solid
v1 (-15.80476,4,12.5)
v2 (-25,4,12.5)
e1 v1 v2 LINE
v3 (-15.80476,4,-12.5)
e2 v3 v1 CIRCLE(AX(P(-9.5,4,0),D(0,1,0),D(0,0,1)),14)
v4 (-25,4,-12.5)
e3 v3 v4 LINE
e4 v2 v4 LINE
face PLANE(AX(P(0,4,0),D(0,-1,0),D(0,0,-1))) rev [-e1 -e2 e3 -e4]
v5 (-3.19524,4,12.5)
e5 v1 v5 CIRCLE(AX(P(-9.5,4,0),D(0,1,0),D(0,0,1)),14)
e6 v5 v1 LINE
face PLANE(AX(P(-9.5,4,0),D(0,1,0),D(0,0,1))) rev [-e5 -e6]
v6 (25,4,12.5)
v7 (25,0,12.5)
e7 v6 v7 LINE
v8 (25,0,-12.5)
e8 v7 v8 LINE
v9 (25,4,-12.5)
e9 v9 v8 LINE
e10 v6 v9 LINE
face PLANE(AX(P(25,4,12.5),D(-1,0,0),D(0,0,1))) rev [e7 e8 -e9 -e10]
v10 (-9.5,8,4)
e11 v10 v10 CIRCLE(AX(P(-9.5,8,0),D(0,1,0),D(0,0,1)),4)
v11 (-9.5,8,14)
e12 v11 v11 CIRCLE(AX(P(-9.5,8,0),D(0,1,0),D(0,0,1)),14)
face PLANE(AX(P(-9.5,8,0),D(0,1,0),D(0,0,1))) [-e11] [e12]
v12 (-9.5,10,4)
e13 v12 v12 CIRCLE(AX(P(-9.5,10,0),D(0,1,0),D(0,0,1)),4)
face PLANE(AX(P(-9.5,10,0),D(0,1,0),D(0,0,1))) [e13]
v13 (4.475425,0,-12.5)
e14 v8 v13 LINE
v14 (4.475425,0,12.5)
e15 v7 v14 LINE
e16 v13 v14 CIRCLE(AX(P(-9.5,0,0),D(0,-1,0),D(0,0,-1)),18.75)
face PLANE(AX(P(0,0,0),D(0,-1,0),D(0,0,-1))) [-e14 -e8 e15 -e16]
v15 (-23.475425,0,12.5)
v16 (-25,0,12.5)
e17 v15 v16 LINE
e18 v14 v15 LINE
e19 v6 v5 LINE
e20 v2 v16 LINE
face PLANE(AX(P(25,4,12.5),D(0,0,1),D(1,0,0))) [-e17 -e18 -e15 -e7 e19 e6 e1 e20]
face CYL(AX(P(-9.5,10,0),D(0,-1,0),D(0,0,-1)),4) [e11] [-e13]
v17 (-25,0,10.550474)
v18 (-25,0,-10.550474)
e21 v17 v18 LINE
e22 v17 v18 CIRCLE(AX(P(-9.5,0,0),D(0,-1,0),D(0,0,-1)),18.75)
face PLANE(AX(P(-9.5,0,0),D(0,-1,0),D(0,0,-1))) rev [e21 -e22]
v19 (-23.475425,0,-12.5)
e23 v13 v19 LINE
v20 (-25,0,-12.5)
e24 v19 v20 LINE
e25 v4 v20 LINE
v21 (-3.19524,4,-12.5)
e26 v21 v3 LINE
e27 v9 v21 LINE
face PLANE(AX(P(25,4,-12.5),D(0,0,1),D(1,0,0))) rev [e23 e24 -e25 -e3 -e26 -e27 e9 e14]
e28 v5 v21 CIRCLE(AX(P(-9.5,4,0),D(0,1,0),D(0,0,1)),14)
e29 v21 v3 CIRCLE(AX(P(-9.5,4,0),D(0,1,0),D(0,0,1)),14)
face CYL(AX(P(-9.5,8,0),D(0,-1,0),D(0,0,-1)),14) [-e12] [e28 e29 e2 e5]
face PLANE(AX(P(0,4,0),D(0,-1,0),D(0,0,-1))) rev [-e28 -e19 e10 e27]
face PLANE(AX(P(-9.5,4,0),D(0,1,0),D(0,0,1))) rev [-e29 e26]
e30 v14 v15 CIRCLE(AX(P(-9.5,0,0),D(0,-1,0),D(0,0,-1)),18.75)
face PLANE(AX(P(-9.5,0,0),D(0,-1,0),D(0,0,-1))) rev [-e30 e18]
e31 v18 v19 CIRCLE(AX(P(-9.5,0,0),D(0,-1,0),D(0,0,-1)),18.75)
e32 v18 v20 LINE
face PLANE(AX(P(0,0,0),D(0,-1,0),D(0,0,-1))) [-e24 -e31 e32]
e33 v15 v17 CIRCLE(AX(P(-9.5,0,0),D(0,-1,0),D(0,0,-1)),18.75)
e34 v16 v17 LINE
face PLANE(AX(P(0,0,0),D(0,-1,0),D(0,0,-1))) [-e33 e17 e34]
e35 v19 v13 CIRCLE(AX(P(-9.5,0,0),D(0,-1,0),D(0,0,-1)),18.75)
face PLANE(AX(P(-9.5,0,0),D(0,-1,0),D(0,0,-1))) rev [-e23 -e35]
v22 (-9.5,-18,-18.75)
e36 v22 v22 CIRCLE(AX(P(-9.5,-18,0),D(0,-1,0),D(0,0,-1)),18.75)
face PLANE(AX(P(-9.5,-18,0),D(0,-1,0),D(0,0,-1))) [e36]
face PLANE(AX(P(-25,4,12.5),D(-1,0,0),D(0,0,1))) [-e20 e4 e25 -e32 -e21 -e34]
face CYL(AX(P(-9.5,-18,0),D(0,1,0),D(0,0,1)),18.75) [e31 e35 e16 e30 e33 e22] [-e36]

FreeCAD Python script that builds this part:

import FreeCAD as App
import Part
import Sketcher

doc = App.newDocument("Part")
body = doc.addObject("PartDesign::Body", "Body")

# Sketch on XZ plane
sketch1 = body.newObject("Sketcher::SketchObject", "Sketch")
sketch1.AttachmentSupport = (doc.getObject("XZ_Plane"), [""])
sketch1.MapMode = "FlatFace"
sketch1.addGeometry([
    Part.LineSegment(App.Vector(-25, -12, 0), App.Vector(-25, 12, 0)),
    Part.LineSegment(App.Vector(-25, 12, 0), App.Vector(25, 12, 0)),
    Part.LineSegment(App.Vector(25, 12, 0), App.Vector(25, -12, 0)),
    Part.LineSegment(App.Vector(25, -12, 0), App.Vector(-25, -12, 0)),
], False)
sketch1.addConstraint([
    Sketcher.Constraint("Coincident", 0, 2, 1, 1),
    Sketcher.Constraint("Coincident", 1, 2, 2, 1),
    Sketcher.Constraint("Coincident", 2, 2, 3, 1),
    Sketcher.Constraint("Coincident", 3, 2, 0, 1),
    Sketcher.Constraint("Vertical", 0),
    Sketcher.Constraint("Horizontal", 1),
    Sketcher.Constraint("Vertical", 2),
    Sketcher.Constraint("Horizontal", 3),
    Sketcher.Constraint("Symmetric", 0, 2, 2, 2, -1, 1),
    Sketcher.Constraint("DistanceX", 1, 1, 1, 2, 50.0),
    Sketcher.Constraint("DistanceY", 0, 1, 0, 2, 25.0),
])
pad1 = body.newObject("PartDesign::Pad", "Pad")
pad1.Profile = sketch1
pad1.Length = 4
pad1.Reversed = True

# Sketch on XZ plane
sketch2 = body.newObject("Sketcher::SketchObject", "Sketch001")
sketch2.AttachmentSupport = (doc.getObject("XZ_Plane"), [""])
sketch2.MapMode = "FlatFace"
sketch2.AttachmentOffset = App.Placement(App.Vector(0, 0, -4), App.Rotation())
sketch2.addGeometry(Part.Circle(App.Vector(-10, 0, 0), App.Vector(0, 0, 1), 14), False)
sketch2.addConstraint([
    Sketcher.Constraint("PointOnObject", 0, 3, -1),
    Sketcher.Constraint("Diameter", 0, 28.0),
    Sketcher.Constraint("DistanceX", 0, 3, -1, 1, 9.5),
])
pad2 = body.newObject("PartDesign::Pad", "Pad001")
pad2.Profile = sketch2
pad2.Length = 4
pad2.Reversed = True

# Sketch on XZ plane
sketch3 = body.newObject("Sketcher::SketchObject", "Sketch002")
sketch3.AttachmentSupport = (doc.getObject("XZ_Plane"), [""])
sketch3.MapMode = "FlatFace"
sketch3.AttachmentOffset = App.Placement(App.Vector(0, 0, -8), App.Rotation())
sketch3.addGeometry(Part.Circle(App.Vector(-9.5, 0, 0), App.Vector(0, 0, 1), 4), False)
sketch3.addConstraint([
    Sketcher.Constraint("PointOnObject", 0, 3, -1),
    Sketcher.Constraint("Diameter", 0, 8.0),
    Sketcher.Constraint("DistanceX", 0, 3, -1, 1, 9.5),
])
pad3 = body.newObject("PartDesign::Pad", "Pad002")
pad3.Profile = sketch3
pad3.Length = 2
pad3.Reversed = True

# Sketch on XZ plane
sketch4 = body.newObject("Sketcher::SketchObject", "Sketch003")
sketch4.AttachmentSupport = (doc.getObject("XZ_Plane"), [""])
sketch4.MapMode = "FlatFace"
sketch4.addGeometry(Part.Circle(App.Vector(-10, 0, 0), App.Vector(0, 0, 1), 19), False)
sketch4.addConstraint([
    Sketcher.Constraint("PointOnObject", 0, 3, -1),
    Sketcher.Constraint("Diameter", 0, 37.5),
    Sketcher.Constraint("DistanceX", 0, 3, -1, 1, 9.5),
])
pad4 = body.newObject("PartDesign::Pad", "Pad003")
pad4.Profile = sketch4
pad4.Length = 18

doc.recompute()
